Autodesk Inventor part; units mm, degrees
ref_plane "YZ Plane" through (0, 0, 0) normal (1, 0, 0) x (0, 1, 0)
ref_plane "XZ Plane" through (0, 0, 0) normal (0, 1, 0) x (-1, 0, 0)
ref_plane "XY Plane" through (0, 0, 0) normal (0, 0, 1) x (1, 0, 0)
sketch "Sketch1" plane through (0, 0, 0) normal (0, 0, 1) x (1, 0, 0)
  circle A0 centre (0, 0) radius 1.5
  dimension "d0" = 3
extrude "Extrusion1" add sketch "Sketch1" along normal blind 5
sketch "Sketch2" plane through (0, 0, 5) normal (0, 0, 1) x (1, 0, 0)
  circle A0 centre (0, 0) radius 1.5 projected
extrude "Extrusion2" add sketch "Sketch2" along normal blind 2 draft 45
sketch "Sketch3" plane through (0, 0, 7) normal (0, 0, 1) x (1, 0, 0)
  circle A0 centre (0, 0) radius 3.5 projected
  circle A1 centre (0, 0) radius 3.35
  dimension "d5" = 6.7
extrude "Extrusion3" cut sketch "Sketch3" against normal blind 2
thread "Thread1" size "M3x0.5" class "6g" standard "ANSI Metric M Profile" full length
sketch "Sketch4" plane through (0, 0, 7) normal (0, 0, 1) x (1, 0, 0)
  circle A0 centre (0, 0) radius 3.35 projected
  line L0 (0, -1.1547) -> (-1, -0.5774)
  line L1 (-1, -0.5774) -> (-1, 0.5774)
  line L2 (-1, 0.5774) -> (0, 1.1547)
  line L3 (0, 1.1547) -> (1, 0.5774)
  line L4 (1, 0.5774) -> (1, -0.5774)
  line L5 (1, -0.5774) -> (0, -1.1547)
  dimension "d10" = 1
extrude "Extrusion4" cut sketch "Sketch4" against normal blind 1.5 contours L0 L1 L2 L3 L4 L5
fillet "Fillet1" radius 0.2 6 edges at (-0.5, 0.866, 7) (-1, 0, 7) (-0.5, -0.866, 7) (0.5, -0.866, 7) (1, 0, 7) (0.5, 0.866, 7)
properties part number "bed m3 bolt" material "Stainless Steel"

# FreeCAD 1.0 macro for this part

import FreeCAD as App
import Part
import Sketcher
Q = App.Units.Quantity


def edges_at(feature, points):
    """Names of the edges that pass closest to the given points."""
    edges = feature.Shape.Edges
    near = lambda p: min(range(len(edges)), key=lambda i: edges[i].distToShape(Part.Vertex(*p))[0])
    return sorted({f"Edge{near(p) + 1}" for p in points})


def add_polygon(sketch, points):
    """Adds a closed chain of lines whose ends are joined by coincident constraints."""
    first, n = sketch.GeometryCount, len(points)
    for a, b in zip(points, points[1:] + points[:1]):
        sketch.addGeometry(Part.LineSegment(App.Vector(*a, 0), App.Vector(*b, 0)), False)
    for i in range(n):
        sketch.addConstraint(Sketcher.Constraint("Coincident", first + i, 2, first + (i + 1) % n, 1))

doc = App.newDocument("Part")
params = doc.addObject("Spreadsheet::Sheet", "Params")
for row, (alias, value) in enumerate([
    ("sketch1_diameter", "3 mm"),
    ("pad1_length", "5 mm"),
    ("sketch2_diameter", "3 mm"),
    ("pad2_length", "2 mm"),
    ("pad2_taper", "45 deg"),
    ("sketch3_diameter", "6.7 mm"),
    ("sketch3_diameter2", "7 mm"),
    ("pocket1_length", "2 mm"),
    ("pocket2_length", "1.5 mm"),
    ("fillet_radius", "0.2 mm"),
], start=1):
    params.set(f"A{row}", alias)
    params.set(f"B{row}", "=" + value)
    params.setAlias(f"B{row}", alias)

body = doc.addObject("PartDesign::Body", "Body")

sketch1 = doc.addObject("Sketcher::SketchObject", "Sketch")
body.addObject(sketch1)
sketch1.AttachmentSupport = (doc.XY_Plane, [""])
sketch1.MapMode = "FlatFace"
sketch1.addGeometry(Part.Circle(App.Vector(0, 0, 0), App.Vector(0, 0, 1), 1.5), False)
sketch1.addConstraint([
    Sketcher.Constraint("Coincident", 0, 3, -1, 1),
    Sketcher.Constraint("Diameter", 0, Q("3 mm")),
])
sketch1.setExpression("Constraints[1]", "Params.sketch1_diameter")
pad1 = doc.addObject("PartDesign::Pad", "Pad")
body.addObject(pad1)
pad1.Profile = sketch1
pad1.setExpression("Length", "Params.pad1_length")

sketch2 = doc.addObject("Sketcher::SketchObject", "Sketch001")
body.addObject(sketch2)
sketch2.AttachmentSupport = (doc.XY_Plane, [""])
sketch2.MapMode = "FlatFace"
sketch2.AttachmentOffset = App.Placement(App.Vector(0, 0, 5), App.Rotation())
sketch2.addGeometry(Part.Circle(App.Vector(0, 0, 0), App.Vector(0, 0, 1), 1.5), False)
sketch2.addConstraint([
    Sketcher.Constraint("Coincident", 0, 3, -1, 1),
    Sketcher.Constraint("Diameter", 0, Q("3 mm")),
])
sketch2.setExpression("Constraints[1]", "Params.sketch2_diameter")
pad2 = doc.addObject("PartDesign::Pad", "Pad001")
body.addObject(pad2)
pad2.Profile = sketch2
pad2.setExpression("Length", "Params.pad2_length")
pad2.setExpression("TaperAngle", "Params.pad2_taper")

sketch3 = doc.addObject("Sketcher::SketchObject", "Sketch002")
body.addObject(sketch3)
sketch3.AttachmentSupport = (doc.XY_Plane, [""])
sketch3.MapMode = "FlatFace"
sketch3.AttachmentOffset = App.Placement(App.Vector(0, 0, 7), App.Rotation())
sketch3.addGeometry([
    Part.Circle(App.Vector(0, 0, 0), App.Vector(0, 0, 1), 3.5),
    Part.Circle(App.Vector(0, 0, 0), App.Vector(0, 0, 1), 3.4),
], False)
sketch3.addConstraint([
    Sketcher.Constraint("Coincident", 0, 3, -1, 1),
    Sketcher.Constraint("Coincident", 1, 3, -1, 1),
    Sketcher.Constraint("Diameter", 1, Q("6.7 mm")),
    Sketcher.Constraint("Diameter", 0, Q("7 mm")),
])
sketch3.setExpression("Constraints[2]", "Params.sketch3_diameter")
sketch3.setExpression("Constraints[3]", "Params.sketch3_diameter2")
pocket1 = doc.addObject("PartDesign::Pocket", "Pocket")
body.addObject(pocket1)
pocket1.Profile = sketch3
pocket1.setExpression("Length", "Params.pocket1_length")

sketch4 = doc.addObject("Sketcher::SketchObject", "Sketch003")
body.addObject(sketch4)
sketch4.AttachmentSupport = (doc.XY_Plane, [""])
sketch4.MapMode = "FlatFace"
sketch4.AttachmentOffset = App.Placement(App.Vector(0, 0, 7), App.Rotation())
add_polygon(sketch4, [(-1, -0.6), (0, -1.2), (1, -0.6), (1, 0.6), (0, 1.2), (-1, 0.6)])
sketch4.addConstraint([
    Sketcher.Constraint("Vertical", 2),
    Sketcher.Constraint("Vertical", 5),
    Sketcher.Constraint("Symmetric", 0, 2, 3, 2, -1, 1),
    Sketcher.Constraint("Symmetric", 1, 2, 4, 2, -1, 1),
    Sketcher.Constraint("PointOnObject", 0, 2, -2),
    Sketcher.Constraint("Parallel", 0, 3),
    Sketcher.Constraint("Horizontal", 2, 2, 4, 2),
    Sketcher.Constraint("DistanceX", -1, 1, 1, 2, Q("1 mm")),
    Sketcher.Constraint("DistanceY", 2, 1, 2, 2, Q("1.1548 mm")),
    Sketcher.Constraint("DistanceY", 0, 2, 2, 2, Q("1.732 mm")),
])
pocket2 = doc.addObject("PartDesign::Pocket", "Pocket001")
body.addObject(pocket2)
pocket2.Profile = sketch4
pocket2.setExpression("Length", "Params.pocket2_length")
doc.recompute()

fillet = doc.addObject("PartDesign::Fillet", "Fillet")
body.addObject(fillet)
fillet.Base = (pocket2, edges_at(pocket2, [
    (-0.5, 0.866, 7),
    (-1, 0, 7),
    (-0.5, -0.866, 7),
    (0.5, -0.866, 7),
    (1, 0, 7),
    (0.5, 0.866, 7),
]))
fillet.setExpression("Radius", "Params.fillet_radius")

doc.recompute()
